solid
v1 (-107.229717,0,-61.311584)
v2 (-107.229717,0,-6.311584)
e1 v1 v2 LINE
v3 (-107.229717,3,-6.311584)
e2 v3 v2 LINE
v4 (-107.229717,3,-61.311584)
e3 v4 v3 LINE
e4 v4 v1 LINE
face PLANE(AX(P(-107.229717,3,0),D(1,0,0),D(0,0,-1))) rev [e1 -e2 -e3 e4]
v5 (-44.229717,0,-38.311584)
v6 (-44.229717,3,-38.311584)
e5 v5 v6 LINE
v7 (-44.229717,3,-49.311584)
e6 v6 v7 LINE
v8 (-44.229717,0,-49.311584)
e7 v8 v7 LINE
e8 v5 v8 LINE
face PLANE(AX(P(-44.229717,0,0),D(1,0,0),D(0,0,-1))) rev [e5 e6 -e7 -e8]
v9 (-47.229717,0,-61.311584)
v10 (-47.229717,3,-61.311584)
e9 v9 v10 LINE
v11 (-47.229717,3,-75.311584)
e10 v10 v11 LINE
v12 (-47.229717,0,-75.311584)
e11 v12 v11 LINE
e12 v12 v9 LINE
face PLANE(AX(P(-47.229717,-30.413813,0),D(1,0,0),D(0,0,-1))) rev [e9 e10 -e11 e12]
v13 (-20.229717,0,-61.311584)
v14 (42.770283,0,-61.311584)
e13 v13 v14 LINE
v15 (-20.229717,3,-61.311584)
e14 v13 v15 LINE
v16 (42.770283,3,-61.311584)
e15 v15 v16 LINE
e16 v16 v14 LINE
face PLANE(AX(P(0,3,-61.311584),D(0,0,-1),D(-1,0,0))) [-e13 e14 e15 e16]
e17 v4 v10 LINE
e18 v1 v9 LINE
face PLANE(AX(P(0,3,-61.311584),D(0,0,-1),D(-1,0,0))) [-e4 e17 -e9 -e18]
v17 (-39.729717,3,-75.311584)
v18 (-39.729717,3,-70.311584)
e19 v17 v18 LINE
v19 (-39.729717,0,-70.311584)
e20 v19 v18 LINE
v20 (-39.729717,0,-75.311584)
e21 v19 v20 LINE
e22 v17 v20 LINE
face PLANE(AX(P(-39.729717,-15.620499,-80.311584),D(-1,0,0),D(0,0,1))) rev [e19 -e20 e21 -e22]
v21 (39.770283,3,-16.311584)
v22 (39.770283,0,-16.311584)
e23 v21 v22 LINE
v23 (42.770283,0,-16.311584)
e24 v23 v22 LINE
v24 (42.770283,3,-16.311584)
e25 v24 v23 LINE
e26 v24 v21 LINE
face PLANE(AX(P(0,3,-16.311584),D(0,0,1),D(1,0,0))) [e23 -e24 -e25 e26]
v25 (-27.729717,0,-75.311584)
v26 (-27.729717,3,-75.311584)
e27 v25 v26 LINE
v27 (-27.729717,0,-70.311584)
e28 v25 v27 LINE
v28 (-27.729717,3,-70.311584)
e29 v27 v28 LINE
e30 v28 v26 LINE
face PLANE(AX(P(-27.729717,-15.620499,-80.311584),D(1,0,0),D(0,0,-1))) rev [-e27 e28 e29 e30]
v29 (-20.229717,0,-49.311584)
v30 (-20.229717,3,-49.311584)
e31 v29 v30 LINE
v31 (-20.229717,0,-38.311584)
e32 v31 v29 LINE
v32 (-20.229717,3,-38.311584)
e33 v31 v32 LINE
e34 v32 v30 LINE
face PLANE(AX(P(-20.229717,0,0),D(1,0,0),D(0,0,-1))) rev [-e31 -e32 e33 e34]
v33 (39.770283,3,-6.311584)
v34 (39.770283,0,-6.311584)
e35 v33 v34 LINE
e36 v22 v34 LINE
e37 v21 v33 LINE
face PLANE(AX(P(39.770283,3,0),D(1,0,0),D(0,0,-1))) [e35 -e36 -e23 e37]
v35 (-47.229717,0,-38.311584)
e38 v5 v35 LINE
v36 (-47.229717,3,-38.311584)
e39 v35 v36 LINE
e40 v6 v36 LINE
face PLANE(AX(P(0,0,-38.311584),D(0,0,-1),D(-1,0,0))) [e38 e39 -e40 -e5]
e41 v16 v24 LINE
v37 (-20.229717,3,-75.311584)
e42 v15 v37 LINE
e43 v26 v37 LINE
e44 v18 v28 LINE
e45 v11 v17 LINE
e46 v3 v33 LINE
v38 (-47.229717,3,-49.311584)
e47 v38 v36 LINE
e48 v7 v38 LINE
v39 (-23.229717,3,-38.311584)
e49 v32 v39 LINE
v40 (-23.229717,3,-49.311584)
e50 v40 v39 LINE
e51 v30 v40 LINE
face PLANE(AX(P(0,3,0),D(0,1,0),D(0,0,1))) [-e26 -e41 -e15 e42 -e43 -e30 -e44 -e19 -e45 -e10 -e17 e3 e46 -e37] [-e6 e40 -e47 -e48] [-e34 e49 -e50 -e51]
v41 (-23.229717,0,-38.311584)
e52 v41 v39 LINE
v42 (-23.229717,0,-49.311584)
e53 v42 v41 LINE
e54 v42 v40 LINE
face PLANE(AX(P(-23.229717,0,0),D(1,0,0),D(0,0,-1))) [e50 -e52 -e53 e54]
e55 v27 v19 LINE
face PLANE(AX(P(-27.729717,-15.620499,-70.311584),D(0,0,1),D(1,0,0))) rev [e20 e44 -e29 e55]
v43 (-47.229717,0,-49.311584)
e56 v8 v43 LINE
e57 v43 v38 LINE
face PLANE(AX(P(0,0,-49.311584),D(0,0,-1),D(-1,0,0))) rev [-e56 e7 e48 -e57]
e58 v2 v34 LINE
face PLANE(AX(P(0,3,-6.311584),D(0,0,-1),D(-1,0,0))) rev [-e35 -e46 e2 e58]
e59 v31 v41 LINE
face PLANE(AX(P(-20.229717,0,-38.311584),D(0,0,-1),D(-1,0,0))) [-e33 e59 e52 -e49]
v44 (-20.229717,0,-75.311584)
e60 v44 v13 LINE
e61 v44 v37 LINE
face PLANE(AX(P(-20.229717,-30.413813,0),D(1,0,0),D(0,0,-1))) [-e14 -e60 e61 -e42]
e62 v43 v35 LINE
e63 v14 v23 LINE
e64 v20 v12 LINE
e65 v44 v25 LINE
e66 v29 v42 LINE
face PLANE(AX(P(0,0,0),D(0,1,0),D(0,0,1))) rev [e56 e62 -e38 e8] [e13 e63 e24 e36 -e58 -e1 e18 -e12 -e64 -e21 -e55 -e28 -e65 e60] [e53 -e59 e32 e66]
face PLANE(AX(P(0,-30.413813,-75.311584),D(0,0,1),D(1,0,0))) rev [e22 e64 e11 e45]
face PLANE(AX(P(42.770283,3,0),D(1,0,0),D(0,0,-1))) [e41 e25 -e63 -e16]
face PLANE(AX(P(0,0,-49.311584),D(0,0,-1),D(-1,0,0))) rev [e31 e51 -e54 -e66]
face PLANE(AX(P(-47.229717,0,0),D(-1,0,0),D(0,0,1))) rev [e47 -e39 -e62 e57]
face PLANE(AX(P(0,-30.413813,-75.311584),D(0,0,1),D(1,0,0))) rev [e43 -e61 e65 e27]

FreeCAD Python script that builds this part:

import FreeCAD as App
import Part
import Sketcher

V = App.Vector
Q = App.Units.Quantity


def add_polygon(sketch, points):
    """Adds a closed chain of lines whose ends are joined by coincident constraints."""
    first, n = sketch.GeometryCount, len(points)
    for a, b in zip(points, points[1:] + points[:1]):
        sketch.addGeometry(Part.LineSegment(App.Vector(*a, 0), App.Vector(*b, 0)), False)
    for i in range(n):
        sketch.addConstraint(Sketcher.Constraint("Coincident", first + i, 2, first + (i + 1) % n, 1))

doc = App.newDocument("Part")
body = doc.addObject("PartDesign::Body", "Body")

sketch1 = doc.addObject("Sketcher::SketchObject", "Sketch")
body.addObject(sketch1)
sketch1.AttachmentSupport = (doc.XZ_Plane, [""])
sketch1.MapMode = "FlatFace"
add_polygon(sketch1, [(-107.2, -61.3), (-107.2, -6.3), (39.8, -6.3), (39.8, -16.3), (42.8, -16.3), (42.8, -61.3)])
sketch1.addConstraint([
    Sketcher.Constraint("Vertical", 0),
    Sketcher.Constraint("Horizontal", 1),
    Sketcher.Constraint("Vertical", 2),
    Sketcher.Constraint("Horizontal", 3),
    Sketcher.Constraint("Vertical", 4),
    Sketcher.Constraint("Horizontal", 5),
    Sketcher.Constraint("DistanceX", 1, 1, 1, 2, Q("147 mm")),
    Sketcher.Constraint("DistanceX", 3, 1, 3, 2, Q("3 mm")),
    Sketcher.Constraint("DistanceY", 0, 1, 0, 2, Q("55 mm")),
    Sketcher.Constraint("DistanceY", 2, 2, 2, 1, Q("10 mm")),
    Sketcher.Constraint("DistanceX", 0, 2, -1, 1, Q("107.229717 mm")),
    Sketcher.Constraint("DistanceY", 0, 2, -1, 1, Q("6.311584 mm")),
])
pad1 = doc.addObject("PartDesign::Pad", "Pad")
body.addObject(pad1)
pad1.Profile = sketch1
pad1.Length = 3
pad1.Reversed = True

sketch2 = doc.addObject("Sketcher::SketchObject", "Sketch001")
body.addObject(sketch2)
sketch2.AttachmentSupport = (doc.XZ_Plane, [""])
sketch2.MapMode = "FlatFace"
sketch2.AttachmentOffset = App.Placement(V(0, 0, -3), App.Rotation())
add_polygon(sketch2, [(-47.2, -49.3), (-47.2, -38.3), (-44.2, -38.3), (-44.2, -49.3)])
add_polygon(sketch2, [(-23.2, -49.3), (-23.2, -38.3), (-20.2, -38.3), (-20.2, -49.3)])
sketch2.addConstraint([
    Sketcher.Constraint("Vertical", 0),
    Sketcher.Constraint("Horizontal", 1),
    Sketcher.Constraint("Vertical", 2),
    Sketcher.Constraint("Horizontal", 3),
    Sketcher.Constraint("Vertical", 4),
    Sketcher.Constraint("Horizontal", 5),
    Sketcher.Constraint("Vertical", 6),
    Sketcher.Constraint("Horizontal", 7),
    Sketcher.Constraint("Horizontal", 1, 2, 4, 2),
    Sketcher.Constraint("Horizontal", 3, 2, 6, 2),
    Sketcher.Constraint("Equal", 3, 5),
    Sketcher.Constraint("DistanceX", 1, 1, 1, 2, Q("3 mm")),
    Sketcher.Constraint("DistanceY", 0, 1, 0, 2, Q("11 mm")),
    Sketcher.Constraint("DistanceX", 1, 2, 4, 2, Q("21 mm")),
    Sketcher.Constraint("DistanceX", 0, 2, -1, 1, Q("47.229717 mm")),
    Sketcher.Constraint("DistanceY", 0, 2, -1, 1, Q("38.311584 mm")),
])
pocket1 = doc.addObject("PartDesign::Pocket", "Pocket")
body.addObject(pocket1)
pocket1.Profile = sketch2
pocket1.Length = 3
pocket1.Reversed = True

sketch3 = doc.addObject("Sketcher::SketchObject", "Sketch002")
body.addObject(sketch3)
sketch3.AttachmentSupport = (doc.XZ_Plane, [""])
sketch3.MapMode = "FlatFace"
sketch3.AttachmentOffset = App.Placement(V(0, 0, -3), App.Rotation())
add_polygon(sketch3, [(-47, -61), (-20, -61), (-20, -75), (-47, -75)])
sketch3.addConstraint([
    Sketcher.Constraint("Horizontal", 0),
    Sketcher.Constraint("Vertical", 1),
    Sketcher.Constraint("Horizontal", 2),
    Sketcher.Constraint("Vertical", 3),
    Sketcher.Constraint("DistanceX", 0, 1, 0, 2, Q("27 mm")),
    Sketcher.Constraint("DistanceY", 1, 2, 1, 1, Q("14 mm")),
    Sketcher.Constraint("DistanceX", 0, 2, -1, 1, Q("20.229717 mm")),
    Sketcher.Constraint("DistanceY", 0, 2, -1, 1, Q("61.311584 mm")),
])
pad2 = doc.addObject("PartDesign::Pad", "Pad001")
body.addObject(pad2)
pad2.Profile = sketch3
pad2.Length = 3

sketch4 = doc.addObject("Sketcher::SketchObject", "Sketch003")
body.addObject(sketch4)
sketch4.AttachmentSupport = (doc.XZ_Plane, [""])
sketch4.MapMode = "FlatFace"
sketch4.AttachmentOffset = App.Placement(V(0, 0, -3), App.Rotation())
add_polygon(sketch4, [(-40, -80), (-40, -70), (-28, -70), (-28, -80)])
sketch4.addConstraint([
    Sketcher.Constraint("Vertical", 0),
    Sketcher.Constraint("Horizontal", 1),
    Sketcher.Constraint("Vertical", 2),
    Sketcher.Constraint("Horizontal", 3),
    Sketcher.Constraint("DistanceX", 1, 1, 1, 2, Q("12 mm")),
    Sketcher.Constraint("DistanceY", 0, 1, 0, 2, Q("10 mm")),
    Sketcher.Constraint("DistanceX", 0, 2, -1, 1, Q("39.729717 mm")),
    Sketcher.Constraint("DistanceY", 0, 2, -1, 1, Q("70.311584 mm")),
])
pocket2 = doc.addObject("PartDesign::Pocket", "Pocket001")
body.addObject(pocket2)
pocket2.Profile = sketch4
pocket2.Length = 3
pocket2.Reversed = True

doc.recompute()
